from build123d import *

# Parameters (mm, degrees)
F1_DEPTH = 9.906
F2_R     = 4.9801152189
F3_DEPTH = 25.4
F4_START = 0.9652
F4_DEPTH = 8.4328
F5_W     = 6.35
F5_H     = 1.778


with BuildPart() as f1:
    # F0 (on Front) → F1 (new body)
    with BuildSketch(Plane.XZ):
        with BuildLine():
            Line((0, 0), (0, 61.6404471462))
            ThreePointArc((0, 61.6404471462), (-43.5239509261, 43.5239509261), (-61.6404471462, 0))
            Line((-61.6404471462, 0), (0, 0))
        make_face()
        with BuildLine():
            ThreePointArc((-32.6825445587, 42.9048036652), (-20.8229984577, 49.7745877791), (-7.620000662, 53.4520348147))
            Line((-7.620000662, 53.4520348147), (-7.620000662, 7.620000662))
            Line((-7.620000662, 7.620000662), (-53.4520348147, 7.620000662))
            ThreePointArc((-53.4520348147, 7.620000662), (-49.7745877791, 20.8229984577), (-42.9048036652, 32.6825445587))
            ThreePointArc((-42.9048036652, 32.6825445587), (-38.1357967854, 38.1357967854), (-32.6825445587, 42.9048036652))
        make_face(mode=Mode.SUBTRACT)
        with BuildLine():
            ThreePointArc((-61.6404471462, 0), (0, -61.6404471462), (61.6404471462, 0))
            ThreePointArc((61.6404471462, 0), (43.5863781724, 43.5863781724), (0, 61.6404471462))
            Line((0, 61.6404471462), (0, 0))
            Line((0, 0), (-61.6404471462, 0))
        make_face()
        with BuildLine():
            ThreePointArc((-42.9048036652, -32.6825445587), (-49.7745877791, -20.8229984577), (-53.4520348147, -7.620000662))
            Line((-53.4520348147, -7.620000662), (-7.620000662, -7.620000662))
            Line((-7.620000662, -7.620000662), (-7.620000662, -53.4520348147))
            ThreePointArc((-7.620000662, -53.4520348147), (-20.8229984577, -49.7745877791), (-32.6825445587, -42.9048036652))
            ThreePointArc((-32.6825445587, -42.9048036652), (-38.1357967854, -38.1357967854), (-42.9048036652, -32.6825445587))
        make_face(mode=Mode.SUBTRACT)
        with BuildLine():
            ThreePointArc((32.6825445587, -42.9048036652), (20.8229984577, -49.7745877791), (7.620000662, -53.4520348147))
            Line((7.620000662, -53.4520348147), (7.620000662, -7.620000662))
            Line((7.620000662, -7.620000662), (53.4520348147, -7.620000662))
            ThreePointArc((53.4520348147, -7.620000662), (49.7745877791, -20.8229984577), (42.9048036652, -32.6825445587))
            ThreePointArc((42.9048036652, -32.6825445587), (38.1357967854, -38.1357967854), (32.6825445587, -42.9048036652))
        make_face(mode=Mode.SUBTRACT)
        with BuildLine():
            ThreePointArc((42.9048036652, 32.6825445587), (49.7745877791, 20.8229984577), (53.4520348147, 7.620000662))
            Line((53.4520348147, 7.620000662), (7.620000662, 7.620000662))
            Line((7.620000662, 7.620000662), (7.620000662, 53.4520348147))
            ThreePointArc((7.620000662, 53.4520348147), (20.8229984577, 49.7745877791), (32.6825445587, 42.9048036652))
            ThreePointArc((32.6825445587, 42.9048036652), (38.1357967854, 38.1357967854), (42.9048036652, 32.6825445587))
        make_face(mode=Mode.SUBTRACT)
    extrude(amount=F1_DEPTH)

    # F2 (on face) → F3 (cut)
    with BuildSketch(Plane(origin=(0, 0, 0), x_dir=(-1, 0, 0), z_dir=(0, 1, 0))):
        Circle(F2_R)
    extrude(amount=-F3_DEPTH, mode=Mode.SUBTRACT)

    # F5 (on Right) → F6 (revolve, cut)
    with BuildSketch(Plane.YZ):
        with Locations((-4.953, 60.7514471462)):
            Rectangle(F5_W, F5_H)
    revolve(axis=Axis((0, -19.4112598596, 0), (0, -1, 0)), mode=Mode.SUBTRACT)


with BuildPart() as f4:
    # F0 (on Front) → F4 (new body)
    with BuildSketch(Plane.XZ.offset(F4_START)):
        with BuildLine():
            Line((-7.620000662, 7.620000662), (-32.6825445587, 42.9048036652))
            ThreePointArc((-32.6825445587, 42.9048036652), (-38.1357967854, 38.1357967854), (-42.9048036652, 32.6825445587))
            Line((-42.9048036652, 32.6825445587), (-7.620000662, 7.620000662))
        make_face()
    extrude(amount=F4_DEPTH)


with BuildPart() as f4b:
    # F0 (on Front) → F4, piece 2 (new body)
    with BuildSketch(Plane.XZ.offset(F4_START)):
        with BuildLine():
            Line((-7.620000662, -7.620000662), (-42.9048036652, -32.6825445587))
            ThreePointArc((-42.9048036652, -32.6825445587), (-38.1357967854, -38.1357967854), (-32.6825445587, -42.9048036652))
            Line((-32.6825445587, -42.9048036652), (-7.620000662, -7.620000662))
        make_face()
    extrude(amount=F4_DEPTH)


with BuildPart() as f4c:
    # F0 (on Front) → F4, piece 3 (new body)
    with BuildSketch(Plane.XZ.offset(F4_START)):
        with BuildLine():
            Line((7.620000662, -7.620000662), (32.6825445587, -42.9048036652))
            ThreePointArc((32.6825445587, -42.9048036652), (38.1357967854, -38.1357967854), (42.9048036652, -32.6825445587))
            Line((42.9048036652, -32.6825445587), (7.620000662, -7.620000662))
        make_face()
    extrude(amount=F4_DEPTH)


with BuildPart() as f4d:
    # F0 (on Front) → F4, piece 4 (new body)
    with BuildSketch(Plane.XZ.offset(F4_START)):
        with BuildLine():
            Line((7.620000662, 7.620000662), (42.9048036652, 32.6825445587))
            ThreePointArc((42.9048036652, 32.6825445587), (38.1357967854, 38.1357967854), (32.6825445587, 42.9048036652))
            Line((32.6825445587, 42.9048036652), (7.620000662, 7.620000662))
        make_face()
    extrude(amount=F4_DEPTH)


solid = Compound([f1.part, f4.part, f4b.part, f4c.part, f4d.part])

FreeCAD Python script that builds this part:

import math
import FreeCAD as App
import Part
import Sketcher
Q = App.Units.Quantity


def add_polygon(sketch, points):
    """Adds a closed chain of lines whose ends are joined by coincident constraints."""
    first, n = sketch.GeometryCount, len(points)
    for a, b in zip(points, points[1:] + points[:1]):
        sketch.addGeometry(Part.LineSegment(App.Vector(*a, 0), App.Vector(*b, 0)), False)
    for i in range(n):
        sketch.addConstraint(Sketcher.Constraint("Coincident", first + i, 2, first + (i + 1) % n, 1))

doc = App.newDocument("Part")
body = doc.addObject("PartDesign::Body", "Body")

# Sketch on XZ plane
sketch1 = body.newObject("Sketcher::SketchObject", "Sketch")
sketch1.AttachmentSupport = (doc.getObject("XZ_Plane"), [""])
sketch1.MapMode = "FlatFace"
sketch1.addGeometry([
    Part.ArcOfCircle(Part.Circle(App.Vector(0.214034, -0.214034, 0), App.Vector(0, 0, 1), 61.854851), math.radians(90.198259), math.radians(179.801741)),  # 0
    Part.ArcOfCircle(Part.Circle(App.Vector(0, 0, 0), App.Vector(0, 0, 1), 61.640447), math.radians(180), math.radians(360)),  # 1
    Part.ArcOfCircle(Part.Circle(App.Vector(0, 0, 0), App.Vector(0, 0, 1), 61.640447), math.radians(0), math.radians(90)),  # 2
    Part.ArcOfCircle(Part.Circle(App.Vector(0.214034, 0.214034, 0), App.Vector(0, 0, 1), 54.234851), math.radians(-142.658968), math.radians(-127.341032)),  # 3
    Part.ArcOfCircle(Part.Circle(App.Vector(0.214034, 0.214034, 0), App.Vector(0, 0, 1), 54.234851), math.radians(-171.694771), math.radians(-142.658968)),  # 4
    Part.LineSegment(App.Vector(-53.452035, -7.620001, 0), App.Vector(-7.620001, -7.620001, 0)),  # 5
    Part.LineSegment(App.Vector(-7.620001, -7.620001, 0), App.Vector(-7.620001, -53.452035, 0)),  # 6
    Part.ArcOfCircle(Part.Circle(App.Vector(0.214034, 0.214034, 0), App.Vector(0, 0, 1), 54.234851), math.radians(-127.341032), math.radians(-98.305229)),  # 7
    Part.ArcOfCircle(Part.Circle(App.Vector(-0.214034, 0.214034, 0), App.Vector(0, 0, 1), 54.234851), math.radians(-52.658968), math.radians(-37.341032)),  # 8
    Part.ArcOfCircle(Part.Circle(App.Vector(-0.214034, 0.214034, 0), App.Vector(0, 0, 1), 54.234851), math.radians(-81.694771), math.radians(-52.658968)),  # 9
    Part.LineSegment(App.Vector(7.620001, -53.452035, 0), App.Vector(7.620001, -7.620001, 0)),  # 10
    Part.LineSegment(App.Vector(7.620001, -7.620001, 0), App.Vector(53.452035, -7.620001, 0)),  # 11
    Part.ArcOfCircle(Part.Circle(App.Vector(-0.214034, 0.214034, 0), App.Vector(0, 0, 1), 54.234851), math.radians(-37.341032), math.radians(-8.305229)),  # 12
    Part.ArcOfCircle(Part.Circle(App.Vector(0.214034, -0.214034, 0), App.Vector(0, 0, 1), 54.234851), math.radians(127.341032), math.radians(142.658968)),  # 13
    Part.ArcOfCircle(Part.Circle(App.Vector(0.214034, -0.214034, 0), App.Vector(0, 0, 1), 54.234851), math.radians(98.305229), math.radians(127.341032)),  # 14
    Part.LineSegment(App.Vector(-7.620001, 53.452035, 0), App.Vector(-7.620001, 7.620001, 0)),  # 15
    Part.LineSegment(App.Vector(-7.620001, 7.620001, 0), App.Vector(-53.452035, 7.620001, 0)),  # 16
    Part.ArcOfCircle(Part.Circle(App.Vector(0.214034, -0.214034, 0), App.Vector(0, 0, 1), 54.234851), math.radians(142.658968), math.radians(171.694771)),  # 17
    Part.ArcOfCircle(Part.Circle(App.Vector(-0.214034, -0.214034, 0), App.Vector(0, 0, 1), 54.234851), math.radians(37.341032), math.radians(52.658968)),  # 18
    Part.ArcOfCircle(Part.Circle(App.Vector(-0.214034, -0.214034, 0), App.Vector(0, 0, 1), 54.234851), math.radians(8.305229), math.radians(37.341032)),  # 19
    Part.LineSegment(App.Vector(53.452035, 7.620001, 0), App.Vector(7.620001, 7.620001, 0)),  # 20
    Part.LineSegment(App.Vector(7.620001, 7.620001, 0), App.Vector(7.620001, 53.452035, 0)),  # 21
    Part.ArcOfCircle(Part.Circle(App.Vector(-0.214034, -0.214034, 0), App.Vector(0, 0, 1), 54.234851), math.radians(52.658968), math.radians(81.694771)),  # 22
], False)
sketch1.addConstraint([
    Sketcher.Constraint("Coincident", 0, 2, 1, 1),
    Sketcher.Constraint("Tangent", 1, 2, 2, 1),
    Sketcher.Constraint("Coincident", 2, 2, 0, 1),
    Sketcher.Constraint("Tangent", 3, 1, 4, 2),
    Sketcher.Constraint("Coincident", 4, 1, 5, 1),
    Sketcher.Constraint("Coincident", 5, 2, 6, 1),
    Sketcher.Constraint("Coincident", 6, 2, 7, 2),
    Sketcher.Constraint("Tangent", 7, 1, 3, 2),
    Sketcher.Constraint("Tangent", 8, 1, 9, 2),
    Sketcher.Constraint("Coincident", 9, 1, 10, 1),
    Sketcher.Constraint("Coincident", 10, 2, 11, 1),
    Sketcher.Constraint("Coincident", 11, 2, 12, 2),
    Sketcher.Constraint("Tangent", 12, 1, 8, 2),
    Sketcher.Constraint("Tangent", 13, 1, 14, 2),
    Sketcher.Constraint("Coincident", 14, 1, 15, 1),
    Sketcher.Constraint("Coincident", 15, 2, 16, 1),
    Sketcher.Constraint("Coincident", 16, 2, 17, 2),
    Sketcher.Constraint("Tangent", 17, 1, 13, 2),
    Sketcher.Constraint("Tangent", 18, 1, 19, 2),
    Sketcher.Constraint("Coincident", 19, 1, 20, 1),
    Sketcher.Constraint("Coincident", 20, 2, 21, 1),
    Sketcher.Constraint("Coincident", 21, 2, 22, 2),
    Sketcher.Constraint("Tangent", 22, 1, 18, 2),
    Sketcher.Constraint("Horizontal", 5),
    Sketcher.Constraint("Vertical", 6),
    Sketcher.Constraint("Vertical", 10),
    Sketcher.Constraint("Horizontal", 11),
    Sketcher.Constraint("Vertical", 15),
    Sketcher.Constraint("Horizontal", 16),
    Sketcher.Constraint("Horizontal", 20),
    Sketcher.Constraint("Vertical", 21),
    Sketcher.Constraint("Coincident", 1, 3, -1, 1),
    Sketcher.Constraint("Coincident", 13, 3, 0, 3),
    Sketcher.Constraint("Equal", 1, 2),
    Sketcher.Constraint("Equal", 3, 4),
    Sketcher.Constraint("Equal", 4, 7),
    Sketcher.Constraint("Equal", 7, 8),
    Sketcher.Constraint("Equal", 8, 9),
    Sketcher.Constraint("Equal", 9, 12),
    Sketcher.Constraint("Equal", 12, 13),
    Sketcher.Constraint("Equal", 13, 14),
    Sketcher.Constraint("Equal", 14, 17),
    Sketcher.Constraint("Equal", 17, 18),
    Sketcher.Constraint("Equal", 18, 19),
    Sketcher.Constraint("Equal", 19, 22),
    Sketcher.Constraint("Symmetric", 0, 3, 8, 3, -1, 1),
    Sketcher.Constraint("Symmetric", 3, 3, 18, 3, -1, 1),
    Sketcher.Constraint("Symmetric", 10, 2, 15, 2, -1, 1),
    Sketcher.Constraint("Symmetric", 5, 2, 20, 2, -1, 1),
    Sketcher.Constraint("Symmetric", 3, 3, 8, 3, -2),
    Sketcher.Constraint("Symmetric", 5, 2, 10, 2, -2),
    Sketcher.Constraint("PointOnObject", 0, 2, -1),
    Sketcher.Constraint("PointOnObject", 1, 2, -1),
    Sketcher.Constraint("PointOnObject", 2, 2, -2),
    Sketcher.Constraint("Horizontal", 7, 1, 8, 1),
    Sketcher.Constraint("Horizontal", 3, 1, 12, 1),
    Sketcher.Constraint("Horizontal", 17, 1, 18, 1),
    Sketcher.Constraint("Horizontal", 13, 1, 22, 1),
    Sketcher.Constraint("Vertical", 7, 1, 13, 1),
    Sketcher.Constraint("Vertical", 3, 1, 17, 1),
    Sketcher.Constraint("Equal", 20, 6),
    Sketcher.Constraint("DistanceY", 4, 1, -1, 1, Q("0.3 in")),
    Sketcher.Constraint("Radius", 0, 61.854851),
    Sketcher.Constraint("Radius", 3, 54.234851),
    Sketcher.Constraint("Radius", 1, 61.640447),
    Sketcher.Constraint("DistanceX", 3, 1, 19, 3, 42.69077),
    Sketcher.Constraint("DistanceX", 3, 1, 7, 1, 10.222259),
])
pad1 = body.newObject("PartDesign::Pad", "Pad")
pad1.Profile = sketch1
pad1.Length = Q("0.39 in")

# Sketch on XZ plane
sketch2 = body.newObject("Sketcher::SketchObject", "Sketch001")
sketch2.AttachmentSupport = (doc.getObject("XZ_Plane"), [""])
sketch2.MapMode = "FlatFace"
sketch2.addGeometry(Part.Circle(App.Vector(0, 0, 0), App.Vector(0, 0, 1), 5), False)
sketch2.addConstraint([
    Sketcher.Constraint("Coincident", 0, 3, -1, 1),
    Sketcher.Constraint("Diameter", 0, 9.96023),
])
pocket1 = body.newObject("PartDesign::Pocket", "Pocket")
pocket1.Profile = sketch2
pocket1.Length = Q("1 in")
pocket1.Reversed = True

# Sketch on YZ plane
sketch3 = body.newObject("Sketcher::SketchObject", "Sketch002")
sketch3.AttachmentSupport = (doc.getObject("YZ_Plane"), [""])
sketch3.MapMode = "FlatFace"
add_polygon(sketch3, [(-8.1, 61.6), (-8.1, 59.9), (-1.8, 59.9), (-1.8, 61.6)])  # lines 0-3
sketch3.addConstraint([
    Sketcher.Constraint("Vertical", 0),
    Sketcher.Constraint("Horizontal", 1),
    Sketcher.Constraint("Vertical", 2),
    Sketcher.Constraint("Horizontal", 3),
    Sketcher.Constraint("DistanceX", 1, 1, 1, 2, Q("0.25 in")),
    Sketcher.Constraint("DistanceY", 0, 2, 0, 1, Q("0.07 in")),
    Sketcher.Constraint("DistanceX", 0, 2, -1, 1, Q("0.32 in")),
    Sketcher.Constraint("DistanceY", -1, 1, 0, 2, 59.862447),
])
groove = body.newObject("PartDesign::Groove", "Groove")
groove.Profile = sketch3
groove.ReferenceAxis = (sketch3, ["H_Axis"])
groove.Angle = 360
body2 = doc.addObject("PartDesign::Body", "Body001")

# Sketch on XZ plane
sketch4 = body2.newObject("Sketcher::SketchObject", "Sketch003")
sketch4.AttachmentSupport = (doc.getObject("XZ_Plane001"), [""])
sketch4.MapMode = "FlatFace"
sketch4.AttachmentOffset = App.Placement(App.Vector(0, 0, 0.038 * 25.4), App.Rotation())
sketch4.addGeometry([
    Part.LineSegment(App.Vector(-8, 8, 0), App.Vector(-33, 43, 0)),
    Part.ArcOfCircle(Part.Circle(App.Vector(0, 0, 0), App.Vector(0, 0, 1), 54), math.radians(127.34), math.radians(142.66)),
    Part.LineSegment(App.Vector(-43, 33, 0), App.Vector(-8, 8, 0)),
], False)
sketch4.addConstraint([
    Sketcher.Constraint("Coincident", 0, 2, 1, 1),
    Sketcher.Constraint("Coincident", 1, 2, 2, 1),
    Sketcher.Constraint("Coincident", 2, 2, 0, 1),
    Sketcher.Constraint("Equal", 0, 2),
    Sketcher.Constraint("DistanceX", 2, 2, -1, 1, Q("0.3 in")),
    Sketcher.Constraint("DistanceY", -1, 1, 2, 2, Q("0.3 in")),
    Sketcher.Constraint("Radius", 1, 54.234851),
    Sketcher.Constraint("DistanceX", 0, 2, 1, 3, 32.896579),
    Sketcher.Constraint("DistanceX", 1, 2, 0, 2, 10.222259),
    Sketcher.Constraint("Distance", 0, 43.279885),
])
pad2 = body2.newObject("PartDesign::Pad", "Pad001")
pad2.Profile = sketch4
pad2.Length = Q("0.332 in")
body3 = doc.addObject("PartDesign::Body", "Body002")

# Sketch on XZ plane
sketch5 = body3.newObject("Sketcher::SketchObject", "Sketch004")
sketch5.AttachmentSupport = (doc.getObject("XZ_Plane002"), [""])
sketch5.MapMode = "FlatFace"
sketch5.AttachmentOffset = App.Placement(App.Vector(0, 0, 0.038 * 25.4), App.Rotation())
sketch5.addGeometry([
    Part.LineSegment(App.Vector(-8, -8, 0), App.Vector(-43, -33, 0)),
    Part.ArcOfCircle(Part.Circle(App.Vector(0, 0, 0), App.Vector(0, 0, 1), 54), math.radians(-142.66), math.radians(-127.34)),
    Part.LineSegment(App.Vector(-33, -43, 0), App.Vector(-8, -8, 0)),
], False)
sketch5.addConstraint([
    Sketcher.Constraint("Coincident", 0, 2, 1, 1),
    Sketcher.Constraint("Coincident", 1, 2, 2, 1),
    Sketcher.Constraint("Coincident", 2, 2, 0, 1),
    Sketcher.Constraint("Equal", 0, 2),
    Sketcher.Constraint("DistanceX", 2, 2, -1, 1, Q("0.3 in")),
    Sketcher.Constraint("DistanceY", 2, 2, -1, 1, Q("0.3 in")),
    Sketcher.Constraint("Radius", 1, 54.234851),
    Sketcher.Constraint("DistanceY", 0, 2, 1, 3, 32.896579),
    Sketcher.Constraint("DistanceX", 0, 2, 1, 2, 10.222259),
    Sketcher.Constraint("Distance", 0, 43.279885),
])
pad3 = body3.newObject("PartDesign::Pad", "Pad002")
pad3.Profile = sketch5
pad3.Length = Q("0.332 in")
body4 = doc.addObject("PartDesign::Body", "Body003")

# Sketch on XZ plane
sketch6 = body4.newObject("Sketcher::SketchObject", "Sketch005")
sketch6.AttachmentSupport = (doc.getObject("XZ_Plane003"), [""])
sketch6.MapMode = "FlatFace"
sketch6.AttachmentOffset = App.Placement(App.Vector(0, 0, 0.038 * 25.4), App.Rotation())
sketch6.addGeometry([
    Part.LineSegment(App.Vector(8, -8, 0), App.Vector(33, -43, 0)),
    Part.ArcOfCircle(Part.Circle(App.Vector(0, 0, 0), App.Vector(0, 0, 1), 54), math.radians(-52.66), math.radians(-37.34)),
    Part.LineSegment(App.Vector(43, -33, 0), App.Vector(8, -8, 0)),
], False)
sketch6.addConstraint([
    Sketcher.Constraint("Coincident", 0, 2, 1, 1),
    Sketcher.Constraint("Coincident", 1, 2, 2, 1),
    Sketcher.Constraint("Coincident", 2, 2, 0, 1),
    Sketcher.Constraint("Equal", 0, 2),
    Sketcher.Constraint("DistanceX", -1, 1, 2, 2, Q("0.3 in")),
    Sketcher.Constraint("DistanceY", 2, 2, -1, 1, Q("0.3 in")),
    Sketcher.Constraint("Radius", 1, 54.234851),
    Sketcher.Constraint("DistanceX", 1, 3, 0, 2, 32.896579),
    Sketcher.Constraint("DistanceX", 0, 2, 1, 2, 10.222259),
    Sketcher.Constraint("Distance", 0, 43.279885),
])
pad4 = body4.newObject("PartDesign::Pad", "Pad003")
pad4.Profile = sketch6
pad4.Length = Q("0.332 in")
body5 = doc.addObject("PartDesign::Body", "Body004")

# Sketch on XZ plane
sketch7 = body5.newObject("Sketcher::SketchObject", "Sketch006")
sketch7.AttachmentSupport = (doc.getObject("XZ_Plane004"), [""])
sketch7.MapMode = "FlatFace"
sketch7.AttachmentOffset = App.Placement(App.Vector(0, 0, 0.038 * 25.4), App.Rotation())
sketch7.addGeometry([
    Part.LineSegment(App.Vector(8, 8, 0), App.Vector(43, 33, 0)),
    Part.ArcOfCircle(Part.Circle(App.Vector(0, 0, 0), App.Vector(0, 0, 1), 54), math.radians(37.34), math.radians(52.66)),
    Part.LineSegment(App.Vector(33, 43, 0), App.Vector(8, 8, 0)),
], False)
sketch7.addConstraint([
    Sketcher.Constraint("Coincident", 0, 2, 1, 1),
    Sketcher.Constraint("Coincident", 1, 2, 2, 1),
    Sketcher.Constraint("Coincident", 2, 2, 0, 1),
    Sketcher.Constraint("Equal", 0, 2),
    Sketcher.Constraint("DistanceX", -1, 1, 2, 2, Q("0.3 in")),
    Sketcher.Constraint("DistanceY", -1, 1, 2, 2, Q("0.3 in")),
    Sketcher.Constraint("Radius", 1, 54.234851),
    Sketcher.Constraint("DistanceY", 1, 3, 0, 2, 32.896579),
    Sketcher.Constraint("DistanceX", 1, 2, 0, 2, 10.222259),
    Sketcher.Constraint("Distance", 0, 43.279885),
])
pad5 = body5.newObject("PartDesign::Pad", "Pad004")
pad5.Profile = sketch7
pad5.Length = Q("0.332 in")

doc.recompute()
